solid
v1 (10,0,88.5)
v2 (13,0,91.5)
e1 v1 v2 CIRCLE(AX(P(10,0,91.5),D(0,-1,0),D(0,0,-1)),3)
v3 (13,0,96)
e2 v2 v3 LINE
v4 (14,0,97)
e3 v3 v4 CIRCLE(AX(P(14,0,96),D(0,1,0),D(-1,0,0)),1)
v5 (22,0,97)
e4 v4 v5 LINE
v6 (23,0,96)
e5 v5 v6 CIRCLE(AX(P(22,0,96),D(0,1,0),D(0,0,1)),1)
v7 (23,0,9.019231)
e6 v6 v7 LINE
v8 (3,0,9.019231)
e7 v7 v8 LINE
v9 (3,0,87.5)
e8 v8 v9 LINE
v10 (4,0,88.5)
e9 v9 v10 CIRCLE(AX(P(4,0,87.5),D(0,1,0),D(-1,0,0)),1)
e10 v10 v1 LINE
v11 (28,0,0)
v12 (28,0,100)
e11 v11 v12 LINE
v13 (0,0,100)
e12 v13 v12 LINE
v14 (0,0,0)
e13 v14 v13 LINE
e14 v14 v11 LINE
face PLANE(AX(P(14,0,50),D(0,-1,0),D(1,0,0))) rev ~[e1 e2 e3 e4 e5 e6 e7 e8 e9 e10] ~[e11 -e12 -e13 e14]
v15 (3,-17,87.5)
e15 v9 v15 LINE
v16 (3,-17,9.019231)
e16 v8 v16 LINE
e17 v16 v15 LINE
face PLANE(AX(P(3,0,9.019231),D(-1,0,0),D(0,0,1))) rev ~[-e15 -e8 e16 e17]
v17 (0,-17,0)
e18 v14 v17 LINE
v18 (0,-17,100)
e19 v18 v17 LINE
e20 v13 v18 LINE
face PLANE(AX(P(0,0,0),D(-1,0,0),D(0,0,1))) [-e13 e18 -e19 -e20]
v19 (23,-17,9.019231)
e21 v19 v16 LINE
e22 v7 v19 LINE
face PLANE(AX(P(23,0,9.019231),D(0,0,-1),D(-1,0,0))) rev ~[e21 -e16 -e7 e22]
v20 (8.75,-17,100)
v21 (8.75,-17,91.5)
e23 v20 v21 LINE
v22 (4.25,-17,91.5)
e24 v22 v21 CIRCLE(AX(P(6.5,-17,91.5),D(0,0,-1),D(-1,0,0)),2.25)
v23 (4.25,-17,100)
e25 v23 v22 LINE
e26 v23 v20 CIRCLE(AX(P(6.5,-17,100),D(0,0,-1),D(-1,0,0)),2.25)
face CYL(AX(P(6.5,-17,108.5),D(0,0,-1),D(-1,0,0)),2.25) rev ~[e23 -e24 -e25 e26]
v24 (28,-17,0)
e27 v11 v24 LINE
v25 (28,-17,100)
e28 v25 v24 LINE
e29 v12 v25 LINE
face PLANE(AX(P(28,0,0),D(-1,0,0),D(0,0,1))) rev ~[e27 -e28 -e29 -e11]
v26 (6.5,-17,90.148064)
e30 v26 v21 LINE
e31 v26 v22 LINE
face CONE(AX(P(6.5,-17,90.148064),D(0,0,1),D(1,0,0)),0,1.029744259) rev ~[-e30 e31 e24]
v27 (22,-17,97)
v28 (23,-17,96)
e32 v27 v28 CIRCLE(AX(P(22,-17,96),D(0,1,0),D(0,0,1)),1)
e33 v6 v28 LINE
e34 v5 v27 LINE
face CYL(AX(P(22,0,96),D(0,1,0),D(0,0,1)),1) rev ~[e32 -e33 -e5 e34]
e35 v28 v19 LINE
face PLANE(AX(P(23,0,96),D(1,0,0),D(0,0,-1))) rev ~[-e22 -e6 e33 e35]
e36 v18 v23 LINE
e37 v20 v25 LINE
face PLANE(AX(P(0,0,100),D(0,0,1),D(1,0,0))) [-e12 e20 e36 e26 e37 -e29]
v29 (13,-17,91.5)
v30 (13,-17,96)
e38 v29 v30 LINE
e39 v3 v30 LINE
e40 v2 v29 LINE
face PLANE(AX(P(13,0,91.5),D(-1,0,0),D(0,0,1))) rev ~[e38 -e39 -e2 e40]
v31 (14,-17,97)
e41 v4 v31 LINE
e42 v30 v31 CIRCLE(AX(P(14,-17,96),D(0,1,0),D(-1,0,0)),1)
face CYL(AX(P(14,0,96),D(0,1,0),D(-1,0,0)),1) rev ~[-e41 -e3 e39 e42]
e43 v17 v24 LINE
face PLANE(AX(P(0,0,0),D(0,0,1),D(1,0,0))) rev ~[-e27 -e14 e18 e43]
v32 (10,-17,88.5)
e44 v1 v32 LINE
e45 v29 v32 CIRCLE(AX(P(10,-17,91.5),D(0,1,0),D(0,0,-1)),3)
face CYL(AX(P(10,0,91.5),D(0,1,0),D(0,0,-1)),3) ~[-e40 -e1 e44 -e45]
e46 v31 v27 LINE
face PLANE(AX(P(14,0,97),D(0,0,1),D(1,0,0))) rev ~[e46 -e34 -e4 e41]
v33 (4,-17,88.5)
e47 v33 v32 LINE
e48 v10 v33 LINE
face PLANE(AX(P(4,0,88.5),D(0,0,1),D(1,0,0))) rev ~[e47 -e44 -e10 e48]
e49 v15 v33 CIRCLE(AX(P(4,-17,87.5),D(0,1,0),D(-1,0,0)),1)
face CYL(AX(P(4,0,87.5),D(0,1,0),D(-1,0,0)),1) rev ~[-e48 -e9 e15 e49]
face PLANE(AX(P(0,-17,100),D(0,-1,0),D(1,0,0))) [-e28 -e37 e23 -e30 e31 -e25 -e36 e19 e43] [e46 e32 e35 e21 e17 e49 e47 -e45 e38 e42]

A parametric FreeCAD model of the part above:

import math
import FreeCAD as App
import Part
import Sketcher

V = App.Vector


def add_polygon(sketch, points):
    """Adds a closed chain of lines whose ends are joined by coincident constraints."""
    first, n = sketch.GeometryCount, len(points)
    for a, b in zip(points, points[1:] + points[:1]):
        sketch.addGeometry(Part.LineSegment(App.Vector(*a, 0), App.Vector(*b, 0)), False)
    for i in range(n):
        sketch.addConstraint(Sketcher.Constraint("Coincident", first + i, 2, first + (i + 1) % n, 1))

doc = App.newDocument("Part")
body = doc.addObject("PartDesign::Body", "Body")

sketch1 = body.newObject("Sketcher::SketchObject", "Sketch")
sketch1.AttachmentSupport = (doc.getObject("XZ_Plane"), [""])
sketch1.MapMode = "FlatFace"
add_polygon(sketch1, [(0, 100), (0, 0), (28, 0), (28, 100)])
sketch1.addGeometry(Part.ArcOfCircle(Part.Circle(V(14, 96, 0), V(0, 0, 1), 1), math.radians(90), math.radians(180)), False)
sketch1.addGeometry(Part.LineSegment(V(14, 97, 0), V(22, 97, 0)), False)
sketch1.addGeometry(Part.ArcOfCircle(Part.Circle(V(22, 96, 0), V(0, 0, 1), 1), math.radians(0), math.radians(90)), False)
sketch1.addGeometry(Part.LineSegment(V(23, 96, 0), V(23, 9, 0)), False)
sketch1.addGeometry(Part.LineSegment(V(23, 9, 0), V(3, 9, 0)), False)
sketch1.addGeometry(Part.LineSegment(V(3, 9, 0), V(3, 87.5, 0)), False)
sketch1.addGeometry(Part.ArcOfCircle(Part.Circle(V(4, 87.5, 0), V(0, 0, 1), 1), math.radians(90), math.radians(180)), False)
sketch1.addGeometry(Part.LineSegment(V(4, 88.5, 0), V(10, 88.5, 0)), False)
sketch1.addGeometry(Part.ArcOfCircle(Part.Circle(V(10, 91.5, 0), V(0, 0, 1), 3), math.radians(-90), math.radians(0)), False)
sketch1.addGeometry(Part.LineSegment(V(13, 91.5, 0), V(13, 96, 0)), False)
sketch1.addConstraint(Sketcher.Constraint("Tangent", 4, 1, 5, 1))
sketch1.addConstraint(Sketcher.Constraint("Tangent", 5, 2, 6, 2))
sketch1.addConstraint(Sketcher.Constraint("Tangent", 6, 1, 7, 1))
sketch1.addConstraint(Sketcher.Constraint("Coincident", 7, 2, 8, 1))
sketch1.addConstraint(Sketcher.Constraint("Coincident", 8, 2, 9, 1))
sketch1.addConstraint(Sketcher.Constraint("Tangent", 9, 2, 10, 2))
sketch1.addConstraint(Sketcher.Constraint("Tangent", 10, 1, 11, 1))
sketch1.addConstraint(Sketcher.Constraint("Tangent", 11, 2, 12, 1))
sketch1.addConstraint(Sketcher.Constraint("Tangent", 12, 2, 13, 1))
sketch1.addConstraint(Sketcher.Constraint("Tangent", 13, 2, 4, 2))
sketch1.addConstraint(Sketcher.Constraint("Vertical", 0))
sketch1.addConstraint(Sketcher.Constraint("Horizontal", 1))
sketch1.addConstraint(Sketcher.Constraint("Vertical", 2))
sketch1.addConstraint(Sketcher.Constraint("Horizontal", 3))
sketch1.addConstraint(Sketcher.Constraint("Horizontal", 5))
sketch1.addConstraint(Sketcher.Constraint("Vertical", 7))
sketch1.addConstraint(Sketcher.Constraint("Horizontal", 8))
sketch1.addConstraint(Sketcher.Constraint("Vertical", 9))
sketch1.addConstraint(Sketcher.Constraint("Horizontal", 11))
sketch1.addConstraint(Sketcher.Constraint("Vertical", 13))
sketch1.addConstraint(Sketcher.Constraint("Coincident", 0, 2, -1, 1))
sketch1.addConstraint(Sketcher.Constraint("Equal", 4, 6))
sketch1.addConstraint(Sketcher.Constraint("Equal", 6, 10))
sketch1.addConstraint(Sketcher.Constraint("Radius", 4, 1.0))
sketch1.addConstraint(Sketcher.Constraint("Radius", 12, 3.0))
sketch1.addConstraint(Sketcher.Constraint("DistanceX", 1, 1, 1, 2, 28.0))
sketch1.addConstraint(Sketcher.Constraint("DistanceX", 5, 1, 5, 2, 8.0))
sketch1.addConstraint(Sketcher.Constraint("DistanceX", 8, 2, 8, 1, 20.0))
sketch1.addConstraint(Sketcher.Constraint("DistanceY", 0, 2, 0, 1, 100.0))
sketch1.addConstraint(Sketcher.Constraint("DistanceY", 13, 1, 13, 2, 4.5))
sketch1.addConstraint(Sketcher.Constraint("DistanceX", -1, 1, 4, 3, 14.0))
sketch1.addConstraint(Sketcher.Constraint("DistanceY", -1, 1, 4, 3, 96.0))
sketch1.addConstraint(Sketcher.Constraint("DistanceY", 7, 2, 7, 1, 86.980769))
pad1 = body.newObject("PartDesign::Pad", "Pad")
pad1.Profile = sketch1
pad1.Length = 25

sketch2 = body.newObject("Sketcher::SketchObject", "Sketch001")
sketch2.AttachmentSupport = (doc.getObject("XY_Plane"), [""])
sketch2.MapMode = "FlatFace"
sketch2.AttachmentOffset = App.Placement(V(0, 0, 100), App.Rotation())
sketch2.addGeometry(Part.Circle(V(6.5, -17, 0), V(0, 0, 1), 2.2), False)
sketch2.addConstraint(Sketcher.Constraint("Diameter", 0, 4.5))
sketch2.addConstraint(Sketcher.Constraint("DistanceY", 0, 3, -1, 1, 17.0))
sketch2.addConstraint(Sketcher.Constraint("DistanceX", -1, 1, 0, 3, 6.5))
doc.recompute()
hole = body.newObject("PartDesign::Hole", "Hole")
hole.Profile = sketch2
hole.ThreadType = "None"
hole.Diameter = 4.5
hole.DepthType = "Dimension"
hole.Depth = 8.5
hole.DrillPoint = "Angled"
hole.DrillPointAngle = 118

sketch3 = body.newObject("Sketcher::SketchObject", "Sketch002")
sketch3.AttachmentSupport = (doc.getObject("XY_Plane"), [""])
sketch3.MapMode = "FlatFace"
sketch3.AttachmentOffset = App.Placement(V(0, 0, 100), App.Rotation())
add_polygon(sketch3, [(0, -17), (0, -25), (28, -25), (28, -17)])
sketch3.addConstraint(Sketcher.Constraint("Vertical", 0))
sketch3.addConstraint(Sketcher.Constraint("Horizontal", 1))
sketch3.addConstraint(Sketcher.Constraint("Vertical", 2))
sketch3.addConstraint(Sketcher.Constraint("Horizontal", 3))
sketch3.addConstraint(Sketcher.Constraint("PointOnObject", 0, 2, -2))
sketch3.addConstraint(Sketcher.Constraint("DistanceX", 1, 1, 1, 2, 28.0))
sketch3.addConstraint(Sketcher.Constraint("DistanceY", 0, 2, 0, 1, 8.0))
sketch3.addConstraint(Sketcher.Constraint("DistanceY", 0, 2, -1, 1, 25.0))
pocket1 = body.newObject("PartDesign::Pocket", "Pocket")
pocket1.Profile = sketch3
pocket1.Type = "ThroughAll"

doc.recompute()
